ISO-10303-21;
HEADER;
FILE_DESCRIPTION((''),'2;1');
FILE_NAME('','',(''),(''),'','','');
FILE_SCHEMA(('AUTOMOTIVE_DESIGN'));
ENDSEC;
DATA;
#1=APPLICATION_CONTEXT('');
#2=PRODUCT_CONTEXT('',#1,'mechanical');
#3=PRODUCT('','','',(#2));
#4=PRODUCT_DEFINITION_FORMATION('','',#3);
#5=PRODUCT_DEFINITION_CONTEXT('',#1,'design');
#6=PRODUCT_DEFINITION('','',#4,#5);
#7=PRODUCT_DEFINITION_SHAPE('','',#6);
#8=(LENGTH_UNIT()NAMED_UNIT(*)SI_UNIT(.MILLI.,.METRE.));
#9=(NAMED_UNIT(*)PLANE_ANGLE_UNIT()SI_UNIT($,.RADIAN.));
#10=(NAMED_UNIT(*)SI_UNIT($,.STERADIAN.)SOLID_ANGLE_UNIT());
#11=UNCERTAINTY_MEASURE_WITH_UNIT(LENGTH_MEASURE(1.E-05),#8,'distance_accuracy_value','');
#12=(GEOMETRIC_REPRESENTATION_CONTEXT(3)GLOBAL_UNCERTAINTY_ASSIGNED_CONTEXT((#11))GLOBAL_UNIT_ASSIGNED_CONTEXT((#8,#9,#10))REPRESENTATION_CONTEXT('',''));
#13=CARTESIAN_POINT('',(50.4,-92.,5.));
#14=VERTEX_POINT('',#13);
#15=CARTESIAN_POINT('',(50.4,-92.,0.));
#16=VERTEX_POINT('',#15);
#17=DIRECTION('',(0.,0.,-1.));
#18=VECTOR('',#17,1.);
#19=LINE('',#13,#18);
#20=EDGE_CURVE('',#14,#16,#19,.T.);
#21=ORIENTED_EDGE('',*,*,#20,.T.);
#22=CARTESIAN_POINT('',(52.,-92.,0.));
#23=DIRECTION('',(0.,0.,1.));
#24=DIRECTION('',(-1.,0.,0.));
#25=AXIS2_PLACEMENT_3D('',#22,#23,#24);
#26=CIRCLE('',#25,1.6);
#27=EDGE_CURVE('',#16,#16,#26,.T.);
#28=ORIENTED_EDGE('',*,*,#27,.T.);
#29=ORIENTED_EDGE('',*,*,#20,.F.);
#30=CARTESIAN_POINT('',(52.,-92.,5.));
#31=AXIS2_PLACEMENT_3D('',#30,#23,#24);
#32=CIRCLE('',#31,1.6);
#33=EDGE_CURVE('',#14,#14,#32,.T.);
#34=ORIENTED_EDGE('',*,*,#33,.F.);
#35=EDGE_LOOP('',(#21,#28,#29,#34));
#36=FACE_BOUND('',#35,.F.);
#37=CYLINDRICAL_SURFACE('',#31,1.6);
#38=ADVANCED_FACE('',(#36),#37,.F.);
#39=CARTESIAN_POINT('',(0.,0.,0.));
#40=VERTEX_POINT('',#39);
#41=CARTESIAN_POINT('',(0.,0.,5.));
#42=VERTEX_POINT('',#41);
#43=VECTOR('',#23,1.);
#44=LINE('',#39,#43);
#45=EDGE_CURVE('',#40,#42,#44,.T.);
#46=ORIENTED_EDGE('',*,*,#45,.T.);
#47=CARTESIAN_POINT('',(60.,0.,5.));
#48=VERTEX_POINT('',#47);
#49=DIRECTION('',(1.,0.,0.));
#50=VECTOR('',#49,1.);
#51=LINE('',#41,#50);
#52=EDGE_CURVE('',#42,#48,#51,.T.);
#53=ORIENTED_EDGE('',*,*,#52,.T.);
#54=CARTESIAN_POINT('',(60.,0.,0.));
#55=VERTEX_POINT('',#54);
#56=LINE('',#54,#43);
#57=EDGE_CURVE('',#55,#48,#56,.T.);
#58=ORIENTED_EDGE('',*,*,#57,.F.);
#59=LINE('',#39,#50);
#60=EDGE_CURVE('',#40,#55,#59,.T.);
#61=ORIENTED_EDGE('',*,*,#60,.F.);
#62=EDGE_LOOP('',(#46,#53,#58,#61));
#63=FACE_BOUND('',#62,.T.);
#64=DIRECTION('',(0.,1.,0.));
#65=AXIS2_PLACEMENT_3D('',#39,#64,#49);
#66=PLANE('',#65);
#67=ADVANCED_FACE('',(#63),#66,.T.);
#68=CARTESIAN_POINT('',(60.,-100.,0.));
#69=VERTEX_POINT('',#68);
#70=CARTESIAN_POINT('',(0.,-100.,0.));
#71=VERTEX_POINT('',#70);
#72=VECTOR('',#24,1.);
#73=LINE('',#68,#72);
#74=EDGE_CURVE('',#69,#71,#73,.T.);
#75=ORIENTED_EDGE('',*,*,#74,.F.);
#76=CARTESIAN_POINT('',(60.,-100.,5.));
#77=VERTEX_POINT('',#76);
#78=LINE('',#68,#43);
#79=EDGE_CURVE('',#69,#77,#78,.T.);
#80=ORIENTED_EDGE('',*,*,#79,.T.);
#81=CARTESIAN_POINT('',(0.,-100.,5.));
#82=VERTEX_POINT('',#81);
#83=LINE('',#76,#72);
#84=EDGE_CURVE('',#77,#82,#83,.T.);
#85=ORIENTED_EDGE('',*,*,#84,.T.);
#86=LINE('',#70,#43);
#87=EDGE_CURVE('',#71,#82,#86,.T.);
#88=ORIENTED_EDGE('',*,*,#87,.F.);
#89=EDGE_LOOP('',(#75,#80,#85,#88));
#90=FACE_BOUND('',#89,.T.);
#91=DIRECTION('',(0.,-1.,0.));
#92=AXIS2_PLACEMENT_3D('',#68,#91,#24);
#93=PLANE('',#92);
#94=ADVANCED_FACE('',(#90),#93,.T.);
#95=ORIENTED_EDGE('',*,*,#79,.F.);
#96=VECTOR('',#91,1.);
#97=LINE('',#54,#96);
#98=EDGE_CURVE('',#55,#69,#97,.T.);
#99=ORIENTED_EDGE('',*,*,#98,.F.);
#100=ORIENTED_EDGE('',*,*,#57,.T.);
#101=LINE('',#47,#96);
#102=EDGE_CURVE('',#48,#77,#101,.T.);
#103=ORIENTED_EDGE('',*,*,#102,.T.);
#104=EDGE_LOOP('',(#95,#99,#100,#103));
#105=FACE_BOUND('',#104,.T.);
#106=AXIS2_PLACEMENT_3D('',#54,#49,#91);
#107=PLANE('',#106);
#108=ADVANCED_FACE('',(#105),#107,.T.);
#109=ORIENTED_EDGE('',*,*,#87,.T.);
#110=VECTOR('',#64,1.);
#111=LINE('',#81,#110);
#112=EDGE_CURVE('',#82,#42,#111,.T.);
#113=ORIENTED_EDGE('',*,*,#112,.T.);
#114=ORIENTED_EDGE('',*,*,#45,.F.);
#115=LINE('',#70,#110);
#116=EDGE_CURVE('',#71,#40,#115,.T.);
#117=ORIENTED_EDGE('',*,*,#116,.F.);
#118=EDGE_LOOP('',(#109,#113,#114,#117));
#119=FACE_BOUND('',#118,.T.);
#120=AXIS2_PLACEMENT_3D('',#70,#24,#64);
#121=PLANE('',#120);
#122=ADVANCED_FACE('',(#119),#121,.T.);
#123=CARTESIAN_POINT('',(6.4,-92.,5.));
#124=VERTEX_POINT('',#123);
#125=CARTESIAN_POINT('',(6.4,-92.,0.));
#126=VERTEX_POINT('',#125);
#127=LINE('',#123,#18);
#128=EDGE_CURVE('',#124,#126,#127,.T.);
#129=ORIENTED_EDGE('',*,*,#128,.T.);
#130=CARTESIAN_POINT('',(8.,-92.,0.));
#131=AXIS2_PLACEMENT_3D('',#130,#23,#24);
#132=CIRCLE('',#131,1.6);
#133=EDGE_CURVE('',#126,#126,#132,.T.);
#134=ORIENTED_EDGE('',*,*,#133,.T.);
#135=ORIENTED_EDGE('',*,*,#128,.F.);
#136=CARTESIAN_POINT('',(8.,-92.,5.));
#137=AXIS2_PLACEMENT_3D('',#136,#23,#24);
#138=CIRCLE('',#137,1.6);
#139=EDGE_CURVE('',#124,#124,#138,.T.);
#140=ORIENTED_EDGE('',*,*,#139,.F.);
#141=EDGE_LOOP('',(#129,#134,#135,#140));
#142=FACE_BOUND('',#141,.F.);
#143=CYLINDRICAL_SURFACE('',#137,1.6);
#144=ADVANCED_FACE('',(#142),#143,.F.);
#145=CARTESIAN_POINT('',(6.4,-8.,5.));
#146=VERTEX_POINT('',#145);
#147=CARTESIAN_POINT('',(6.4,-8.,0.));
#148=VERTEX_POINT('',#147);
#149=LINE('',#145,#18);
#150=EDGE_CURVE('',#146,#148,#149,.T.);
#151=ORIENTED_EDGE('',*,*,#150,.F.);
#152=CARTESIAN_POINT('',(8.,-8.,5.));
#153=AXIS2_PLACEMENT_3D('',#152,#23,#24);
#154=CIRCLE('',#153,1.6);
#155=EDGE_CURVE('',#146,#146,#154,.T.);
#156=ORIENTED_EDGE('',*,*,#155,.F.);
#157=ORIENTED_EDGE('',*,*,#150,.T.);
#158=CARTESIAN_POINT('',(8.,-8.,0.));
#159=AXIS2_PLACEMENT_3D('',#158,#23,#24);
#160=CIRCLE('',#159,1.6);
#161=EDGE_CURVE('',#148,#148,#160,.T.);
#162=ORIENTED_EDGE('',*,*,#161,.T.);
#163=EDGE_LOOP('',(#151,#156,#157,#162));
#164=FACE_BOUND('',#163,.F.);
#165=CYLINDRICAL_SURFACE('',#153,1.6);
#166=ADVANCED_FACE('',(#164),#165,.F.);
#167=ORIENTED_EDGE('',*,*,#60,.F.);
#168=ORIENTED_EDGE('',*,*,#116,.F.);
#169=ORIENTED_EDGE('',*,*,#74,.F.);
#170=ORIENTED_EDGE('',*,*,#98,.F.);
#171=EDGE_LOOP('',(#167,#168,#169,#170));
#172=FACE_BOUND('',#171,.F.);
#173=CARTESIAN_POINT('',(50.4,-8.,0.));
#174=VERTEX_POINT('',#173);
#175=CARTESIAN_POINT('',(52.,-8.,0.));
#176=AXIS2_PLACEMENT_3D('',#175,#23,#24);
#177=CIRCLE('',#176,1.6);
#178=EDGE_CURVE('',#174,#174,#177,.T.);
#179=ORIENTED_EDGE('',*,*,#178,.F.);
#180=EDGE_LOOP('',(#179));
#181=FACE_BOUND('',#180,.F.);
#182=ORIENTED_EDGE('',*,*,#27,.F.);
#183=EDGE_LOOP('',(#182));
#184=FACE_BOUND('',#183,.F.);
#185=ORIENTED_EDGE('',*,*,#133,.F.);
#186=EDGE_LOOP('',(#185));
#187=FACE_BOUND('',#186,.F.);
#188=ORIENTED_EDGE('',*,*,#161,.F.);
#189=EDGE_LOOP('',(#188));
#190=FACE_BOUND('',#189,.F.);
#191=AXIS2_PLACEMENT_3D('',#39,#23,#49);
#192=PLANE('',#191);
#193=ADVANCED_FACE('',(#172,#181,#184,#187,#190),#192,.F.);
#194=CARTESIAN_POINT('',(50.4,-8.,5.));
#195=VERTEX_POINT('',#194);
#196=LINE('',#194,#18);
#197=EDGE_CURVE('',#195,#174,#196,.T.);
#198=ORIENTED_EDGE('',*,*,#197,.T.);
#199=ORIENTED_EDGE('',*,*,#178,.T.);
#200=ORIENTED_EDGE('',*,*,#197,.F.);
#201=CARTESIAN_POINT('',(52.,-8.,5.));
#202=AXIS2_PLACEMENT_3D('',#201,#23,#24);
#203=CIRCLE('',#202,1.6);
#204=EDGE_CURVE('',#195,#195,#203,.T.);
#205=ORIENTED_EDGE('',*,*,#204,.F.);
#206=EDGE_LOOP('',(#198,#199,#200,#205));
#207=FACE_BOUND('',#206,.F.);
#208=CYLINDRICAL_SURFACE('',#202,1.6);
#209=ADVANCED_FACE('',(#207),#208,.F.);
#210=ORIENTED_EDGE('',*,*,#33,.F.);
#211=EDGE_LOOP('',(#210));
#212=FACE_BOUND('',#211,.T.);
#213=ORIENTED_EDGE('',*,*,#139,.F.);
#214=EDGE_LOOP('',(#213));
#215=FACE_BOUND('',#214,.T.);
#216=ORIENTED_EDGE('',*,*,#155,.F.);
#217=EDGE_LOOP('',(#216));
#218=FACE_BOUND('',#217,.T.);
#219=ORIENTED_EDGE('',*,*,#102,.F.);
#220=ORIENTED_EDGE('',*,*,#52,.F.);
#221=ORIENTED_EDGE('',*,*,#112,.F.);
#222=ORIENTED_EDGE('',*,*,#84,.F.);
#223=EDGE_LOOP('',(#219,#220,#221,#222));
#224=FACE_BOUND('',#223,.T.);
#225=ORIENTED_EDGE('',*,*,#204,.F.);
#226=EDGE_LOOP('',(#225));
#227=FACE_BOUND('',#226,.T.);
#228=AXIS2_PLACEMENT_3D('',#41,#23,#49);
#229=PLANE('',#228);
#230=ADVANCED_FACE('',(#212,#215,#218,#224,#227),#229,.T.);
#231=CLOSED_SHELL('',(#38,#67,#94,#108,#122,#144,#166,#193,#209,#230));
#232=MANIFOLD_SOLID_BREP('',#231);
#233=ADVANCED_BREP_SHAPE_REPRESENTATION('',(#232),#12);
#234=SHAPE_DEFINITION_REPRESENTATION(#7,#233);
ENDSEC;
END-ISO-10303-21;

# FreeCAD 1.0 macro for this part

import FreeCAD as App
import Part
import Sketcher

V = App.Vector
Q = App.Units.Quantity

doc = App.newDocument("Part")
body = doc.addObject("PartDesign::Body", "Body")

# Sketch on XY plane
sketch1 = body.newObject("Sketcher::SketchObject", "Sketch")
sketch1.AttachmentSupport = (doc.getObject("XY_Plane"), [""])
sketch1.MapMode = "FlatFace"
sketch1.addGeometry([
    Part.LineSegment(V(60, 0, 0), V(0, 0, 0)),
    Part.LineSegment(V(0, 0, 0), V(0, -100, 0)),
    Part.LineSegment(V(0, -100, 0), V(60, -100, 0)),
    Part.LineSegment(V(60, -100, 0), V(60, 0, 0)),
], False)
sketch1.addConstraint([
    Sketcher.Constraint("Coincident", 0, 2, 1, 1),
    Sketcher.Constraint("Coincident", 1, 2, 2, 1),
    Sketcher.Constraint("Coincident", 2, 2, 3, 1),
    Sketcher.Constraint("Coincident", 3, 2, 0, 1),
    Sketcher.Constraint("Horizontal", 0),
    Sketcher.Constraint("Vertical", 1),
    Sketcher.Constraint("Horizontal", 2),
    Sketcher.Constraint("Vertical", 3),
    Sketcher.Constraint("Coincident", 0, 2, -1, 1),
    Sketcher.Constraint("DistanceX", 0, 2, 0, 1, Q("60 mm")),
    Sketcher.Constraint("DistanceY", 1, 2, 1, 1, Q("100 mm")),
])
pad1 = body.newObject("PartDesign::Pad", "Pad")
pad1.Profile = sketch1
pad1.Length = 5

# Sketch on XY plane
sketch2 = body.newObject("Sketcher::SketchObject", "Sketch001")
sketch2.AttachmentSupport = (doc.getObject("XY_Plane"), [""])
sketch2.MapMode = "FlatFace"
sketch2.AttachmentOffset = App.Placement(V(0, 0, 5), App.Rotation())
sketch2.addGeometry([
    Part.Circle(V(8, -8, 0), V(0, 0, 1), 1.6),
    Part.Circle(V(52, -8, 0), V(0, 0, 1), 1.6),
    Part.Circle(V(8, -92, 0), V(0, 0, 1), 1.6),
    Part.Circle(V(52, -92, 0), V(0, 0, 1), 1.6),
], False)
sketch2.addConstraint([
    Sketcher.Constraint("Equal", 0, 1),
    Sketcher.Constraint("Equal", 1, 2),
    Sketcher.Constraint("Equal", 2, 3),
    Sketcher.Constraint("Horizontal", 0, 3, 1, 3),
    Sketcher.Constraint("Horizontal", 2, 3, 3, 3),
    Sketcher.Constraint("Vertical", 0, 3, 2, 3),
    Sketcher.Constraint("Vertical", 1, 3, 3, 3),
    Sketcher.Constraint("Diameter", 0, Q("3.2 mm")),
    Sketcher.Constraint("DistanceX", -1, 1, 0, 3, Q("8 mm")),
    Sketcher.Constraint("DistanceY", 0, 3, -1, 1, Q("8 mm")),
    Sketcher.Constraint("DistanceX", 0, 3, 1, 3, Q("44 mm")),
    Sketcher.Constraint("DistanceY", 2, 3, 0, 3, Q("84 mm")),
])
pocket1 = body.newObject("PartDesign::Pocket", "Pocket")
pocket1.Profile = sketch2
pocket1.Length = 5

doc.recompute()
